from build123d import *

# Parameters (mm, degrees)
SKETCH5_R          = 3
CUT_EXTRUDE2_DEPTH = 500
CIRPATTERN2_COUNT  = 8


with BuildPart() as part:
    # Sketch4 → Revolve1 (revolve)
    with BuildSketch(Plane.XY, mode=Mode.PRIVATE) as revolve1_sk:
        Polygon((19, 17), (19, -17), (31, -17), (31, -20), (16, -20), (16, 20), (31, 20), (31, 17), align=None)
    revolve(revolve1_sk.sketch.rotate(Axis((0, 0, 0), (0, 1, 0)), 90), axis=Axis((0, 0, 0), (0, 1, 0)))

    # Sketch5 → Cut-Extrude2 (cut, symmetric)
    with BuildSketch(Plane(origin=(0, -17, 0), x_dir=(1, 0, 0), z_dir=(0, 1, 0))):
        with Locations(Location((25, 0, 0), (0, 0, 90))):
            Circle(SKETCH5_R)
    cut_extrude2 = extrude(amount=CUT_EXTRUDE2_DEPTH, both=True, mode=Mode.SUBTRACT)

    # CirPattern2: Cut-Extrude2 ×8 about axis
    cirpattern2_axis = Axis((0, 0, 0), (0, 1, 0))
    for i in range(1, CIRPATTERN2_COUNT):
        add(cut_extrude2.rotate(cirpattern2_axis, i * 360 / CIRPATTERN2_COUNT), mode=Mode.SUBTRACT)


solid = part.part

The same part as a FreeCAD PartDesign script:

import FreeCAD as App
import Part
import Sketcher
Q = App.Units.Quantity


def add_polygon(sketch, points):
    """Adds a closed chain of lines whose ends are joined by coincident constraints."""
    first, n = sketch.GeometryCount, len(points)
    for a, b in zip(points, points[1:] + points[:1]):
        sketch.addGeometry(Part.LineSegment(App.Vector(*a, 0), App.Vector(*b, 0)), False)
    for i in range(n):
        sketch.addConstraint(Sketcher.Constraint("Coincident", first + i, 2, first + (i + 1) % n, 1))

doc = App.newDocument("Part")
body = doc.addObject("PartDesign::Body", "Body")

# Sketch on XY plane
sketch1 = doc.addObject("Sketcher::SketchObject", "Sketch")
body.addObject(sketch1)
sketch1.AttachmentSupport = (doc.XY_Plane, [""])
sketch1.MapMode = "FlatFace"
add_polygon(sketch1, [(19, -17), (19, 17), (31, 17), (31, 20), (16, 20), (16, -20), (31, -20), (31, -17)])  # lines 0-7
sketch1.addConstraint([
    Sketcher.Constraint("Vertical", 0),
    Sketcher.Constraint("Horizontal", 1),
    Sketcher.Constraint("Vertical", 2),
    Sketcher.Constraint("Horizontal", 3),
    Sketcher.Constraint("Vertical", 4),
    Sketcher.Constraint("Horizontal", 5),
    Sketcher.Constraint("Vertical", 6),
    Sketcher.Constraint("Horizontal", 7),
    Sketcher.Constraint("Symmetric", 2, 2, 5, 2, -1),
    Sketcher.Constraint("Equal", 2, 6),
    Sketcher.Constraint("DistanceX", 1, 1, 1, 2, Q("12 mm")),
    Sketcher.Constraint("DistanceX", 3, 2, 3, 1, Q("15 mm")),
    Sketcher.Constraint("DistanceY", 0, 1, 0, 2, Q("34 mm")),
    Sketcher.Constraint("DistanceY", 2, 1, 2, 2, Q("3 mm")),
    Sketcher.Constraint("DistanceX", -1, 1, 0, 2, Q("19 mm")),
])
revolution = doc.addObject("PartDesign::Revolution", "Revolution")
body.addObject(revolution)
revolution.Profile = sketch1
revolution.ReferenceAxis = (sketch1, ["V_Axis"])
revolution.Angle = 360

# Sketch on XZ plane
sketch2 = doc.addObject("Sketcher::SketchObject", "Sketch001")
body.addObject(sketch2)
sketch2.AttachmentSupport = (doc.XZ_Plane, [""])
sketch2.MapMode = "FlatFace"
sketch2.AttachmentOffset = App.Placement(App.Vector(0, 0, 17), App.Rotation())
sketch2.addGeometry(Part.Circle(App.Vector(25, 0, 0), App.Vector(0, 0, 1), 3), False)
sketch2.addConstraint([
    Sketcher.Constraint("PointOnObject", 0, 3, -1),
    Sketcher.Constraint("Diameter", 0, Q("6 mm")),
    Sketcher.Constraint("DistanceX", -1, 1, 0, 3, Q("25 mm")),
])
pocket1 = doc.addObject("PartDesign::Pocket", "Pocket")
body.addObject(pocket1)
pocket1.Profile = sketch2
pocket1.Length = 1000
pocket1.Midplane = True
doc.recompute()

polarpattern = doc.addObject("PartDesign::PolarPattern", "PolarPattern")
body.addObject(polarpattern)
polarpattern.Originals = [pocket1]
polarpattern.Axis = (doc.Y_Axis, [""])
polarpattern.Angle = 360
polarpattern.Occurrences = 8
body.Tip = polarpattern

doc.recompute()
